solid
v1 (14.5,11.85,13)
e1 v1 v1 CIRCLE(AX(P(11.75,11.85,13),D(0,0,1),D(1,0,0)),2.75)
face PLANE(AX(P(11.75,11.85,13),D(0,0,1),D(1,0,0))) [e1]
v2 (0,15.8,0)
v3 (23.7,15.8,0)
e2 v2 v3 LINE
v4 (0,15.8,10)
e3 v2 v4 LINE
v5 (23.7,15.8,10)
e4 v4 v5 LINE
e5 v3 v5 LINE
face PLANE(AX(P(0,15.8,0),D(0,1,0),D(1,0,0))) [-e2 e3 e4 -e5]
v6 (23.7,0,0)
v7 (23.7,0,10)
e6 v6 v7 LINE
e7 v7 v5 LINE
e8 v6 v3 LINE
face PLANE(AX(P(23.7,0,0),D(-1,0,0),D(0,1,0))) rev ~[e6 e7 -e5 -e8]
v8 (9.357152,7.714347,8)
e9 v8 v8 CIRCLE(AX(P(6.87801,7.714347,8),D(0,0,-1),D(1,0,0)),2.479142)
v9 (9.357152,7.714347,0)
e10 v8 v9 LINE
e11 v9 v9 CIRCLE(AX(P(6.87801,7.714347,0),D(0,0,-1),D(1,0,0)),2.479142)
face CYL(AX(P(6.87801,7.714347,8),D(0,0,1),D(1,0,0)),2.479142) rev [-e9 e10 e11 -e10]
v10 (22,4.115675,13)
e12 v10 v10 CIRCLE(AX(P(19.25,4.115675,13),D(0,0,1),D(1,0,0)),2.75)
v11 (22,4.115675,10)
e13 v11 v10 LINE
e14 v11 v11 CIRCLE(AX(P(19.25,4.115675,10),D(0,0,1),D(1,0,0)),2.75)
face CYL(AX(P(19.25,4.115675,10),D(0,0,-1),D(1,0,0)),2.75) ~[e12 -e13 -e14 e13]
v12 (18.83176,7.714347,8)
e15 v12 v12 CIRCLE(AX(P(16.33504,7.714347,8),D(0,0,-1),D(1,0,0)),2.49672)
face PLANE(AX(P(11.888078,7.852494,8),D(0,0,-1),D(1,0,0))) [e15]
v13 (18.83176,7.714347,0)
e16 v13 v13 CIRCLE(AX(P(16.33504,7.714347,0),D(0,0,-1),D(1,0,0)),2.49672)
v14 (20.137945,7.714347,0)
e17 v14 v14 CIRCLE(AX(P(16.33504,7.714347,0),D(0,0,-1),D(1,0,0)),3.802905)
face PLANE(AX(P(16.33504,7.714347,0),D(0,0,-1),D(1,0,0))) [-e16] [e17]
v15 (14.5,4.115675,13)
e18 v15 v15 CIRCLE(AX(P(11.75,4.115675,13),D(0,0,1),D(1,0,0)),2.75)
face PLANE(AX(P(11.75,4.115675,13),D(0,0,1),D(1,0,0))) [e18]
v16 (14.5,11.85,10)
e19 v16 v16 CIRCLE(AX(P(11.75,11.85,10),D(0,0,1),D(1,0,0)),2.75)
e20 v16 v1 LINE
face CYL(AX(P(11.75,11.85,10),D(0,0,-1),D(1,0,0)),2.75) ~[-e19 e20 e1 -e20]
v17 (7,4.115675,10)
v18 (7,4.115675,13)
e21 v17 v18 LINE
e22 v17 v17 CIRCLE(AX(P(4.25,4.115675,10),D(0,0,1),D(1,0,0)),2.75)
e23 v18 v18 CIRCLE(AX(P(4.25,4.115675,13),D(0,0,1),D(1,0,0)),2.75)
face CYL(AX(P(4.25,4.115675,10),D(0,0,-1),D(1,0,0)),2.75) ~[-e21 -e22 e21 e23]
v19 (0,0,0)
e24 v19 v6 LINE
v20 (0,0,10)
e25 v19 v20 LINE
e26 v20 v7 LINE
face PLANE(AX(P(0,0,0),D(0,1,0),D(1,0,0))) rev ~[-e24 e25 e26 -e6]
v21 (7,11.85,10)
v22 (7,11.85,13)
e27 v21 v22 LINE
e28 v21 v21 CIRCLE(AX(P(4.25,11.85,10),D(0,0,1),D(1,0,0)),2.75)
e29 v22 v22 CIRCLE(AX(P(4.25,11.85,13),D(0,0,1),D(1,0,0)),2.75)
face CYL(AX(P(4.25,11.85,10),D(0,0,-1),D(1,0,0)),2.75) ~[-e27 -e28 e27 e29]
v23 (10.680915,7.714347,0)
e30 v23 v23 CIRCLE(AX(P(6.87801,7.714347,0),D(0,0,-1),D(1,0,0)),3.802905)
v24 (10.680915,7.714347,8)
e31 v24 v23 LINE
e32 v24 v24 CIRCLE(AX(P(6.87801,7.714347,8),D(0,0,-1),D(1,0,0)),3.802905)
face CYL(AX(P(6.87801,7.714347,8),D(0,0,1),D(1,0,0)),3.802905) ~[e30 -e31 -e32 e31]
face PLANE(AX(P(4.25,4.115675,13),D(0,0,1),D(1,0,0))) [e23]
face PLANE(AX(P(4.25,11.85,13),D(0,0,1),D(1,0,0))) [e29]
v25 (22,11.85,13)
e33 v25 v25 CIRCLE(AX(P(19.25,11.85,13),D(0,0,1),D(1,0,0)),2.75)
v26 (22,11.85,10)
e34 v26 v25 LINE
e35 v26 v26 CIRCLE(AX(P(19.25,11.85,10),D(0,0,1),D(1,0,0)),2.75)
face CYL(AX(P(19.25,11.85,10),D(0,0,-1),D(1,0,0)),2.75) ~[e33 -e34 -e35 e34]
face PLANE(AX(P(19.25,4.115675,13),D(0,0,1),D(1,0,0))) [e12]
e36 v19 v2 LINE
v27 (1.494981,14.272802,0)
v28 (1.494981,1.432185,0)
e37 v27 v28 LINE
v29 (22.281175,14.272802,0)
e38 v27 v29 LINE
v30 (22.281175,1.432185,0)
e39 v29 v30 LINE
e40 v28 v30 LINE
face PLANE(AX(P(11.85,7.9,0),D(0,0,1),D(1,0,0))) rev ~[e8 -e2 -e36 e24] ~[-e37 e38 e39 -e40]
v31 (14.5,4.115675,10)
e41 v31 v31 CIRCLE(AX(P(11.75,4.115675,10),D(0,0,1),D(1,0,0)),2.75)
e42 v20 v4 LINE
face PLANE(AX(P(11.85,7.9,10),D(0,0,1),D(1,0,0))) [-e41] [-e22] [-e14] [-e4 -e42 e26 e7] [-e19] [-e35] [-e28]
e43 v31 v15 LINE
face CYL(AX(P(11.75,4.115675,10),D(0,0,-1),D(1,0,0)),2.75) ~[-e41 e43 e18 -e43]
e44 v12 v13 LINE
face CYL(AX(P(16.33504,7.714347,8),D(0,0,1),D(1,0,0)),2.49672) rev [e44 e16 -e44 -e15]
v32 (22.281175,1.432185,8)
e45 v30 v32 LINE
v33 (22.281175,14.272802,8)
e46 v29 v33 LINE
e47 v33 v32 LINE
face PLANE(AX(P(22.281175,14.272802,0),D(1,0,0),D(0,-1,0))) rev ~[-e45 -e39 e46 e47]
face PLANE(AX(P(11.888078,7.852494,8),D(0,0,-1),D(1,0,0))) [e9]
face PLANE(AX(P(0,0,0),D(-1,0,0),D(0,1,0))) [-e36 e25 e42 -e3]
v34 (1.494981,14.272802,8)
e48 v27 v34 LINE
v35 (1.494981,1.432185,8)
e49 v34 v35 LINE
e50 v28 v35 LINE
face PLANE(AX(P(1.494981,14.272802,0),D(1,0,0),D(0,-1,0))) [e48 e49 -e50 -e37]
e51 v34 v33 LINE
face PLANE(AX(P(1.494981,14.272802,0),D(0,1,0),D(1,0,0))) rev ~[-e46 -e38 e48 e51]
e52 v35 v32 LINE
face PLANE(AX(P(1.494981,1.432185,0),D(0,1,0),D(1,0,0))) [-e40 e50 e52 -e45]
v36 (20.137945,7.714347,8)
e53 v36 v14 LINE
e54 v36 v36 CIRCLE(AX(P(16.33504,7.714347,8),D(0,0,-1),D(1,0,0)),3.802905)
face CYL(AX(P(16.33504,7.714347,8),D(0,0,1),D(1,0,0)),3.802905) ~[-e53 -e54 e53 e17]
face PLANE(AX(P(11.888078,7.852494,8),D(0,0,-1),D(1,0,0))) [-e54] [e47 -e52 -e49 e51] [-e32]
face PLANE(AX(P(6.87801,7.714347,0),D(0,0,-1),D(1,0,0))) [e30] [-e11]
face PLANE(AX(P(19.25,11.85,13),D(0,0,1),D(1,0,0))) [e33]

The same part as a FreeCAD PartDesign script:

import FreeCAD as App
import Part
import Sketcher

doc = App.newDocument("Part")
params = doc.addObject("Spreadsheet::Sheet", "Params")
for row, (alias, value) in enumerate([
    ("sketch1_width", "23.7 mm"),
    ("sketch1_height", "15.8 mm"),
    ("pad1_length", "10 mm"),
    ("sketch2_diameter", "5.5 mm"),
    ("pad2_length", "3 mm"),
    ("pocket1_length", "8 mm"),
    ("pad3_length", "8 mm"),
], start=1):
    params.set(f"A{row}", alias)
    params.set(f"B{row}", "=" + value)
    params.setAlias(f"B{row}", alias)

body = doc.addObject("PartDesign::Body", "Body")

sketch1 = doc.addObject("Sketcher::SketchObject", "Sketch")
body.addObject(sketch1)
sketch1.AttachmentSupport = (doc.XY_Plane, [""])
sketch1.MapMode = "FlatFace"
sketch1.addGeometry([
    Part.LineSegment(App.Vector(0, 16, 0), App.Vector(0, 0, 0)),
    Part.LineSegment(App.Vector(0, 0, 0), App.Vector(24, 0, 0)),
    Part.LineSegment(App.Vector(24, 0, 0), App.Vector(24, 16, 0)),
    Part.LineSegment(App.Vector(24, 16, 0), App.Vector(0, 16, 0)),
], False)
sketch1.addConstraint([
    Sketcher.Constraint("Coincident", 0, 2, 1, 1),
    Sketcher.Constraint("Coincident", 1, 2, 2, 1),
    Sketcher.Constraint("Coincident", 2, 2, 3, 1),
    Sketcher.Constraint("Coincident", 3, 2, 0, 1),
    Sketcher.Constraint("Vertical", 0),
    Sketcher.Constraint("Horizontal", 1),
    Sketcher.Constraint("Vertical", 2),
    Sketcher.Constraint("Horizontal", 3),
    Sketcher.Constraint("Coincident", 0, 2, -1, 1),
    Sketcher.Constraint("DistanceX", 1, 1, 1, 2, 23.7),
    Sketcher.Constraint("DistanceY", 0, 2, 0, 1, 15.8),
])
sketch1.setExpression("Constraints[9]", "Params.sketch1_width")
sketch1.setExpression("Constraints[10]", "Params.sketch1_height")
pad1 = doc.addObject("PartDesign::Pad", "Pad")
body.addObject(pad1)
pad1.Profile = sketch1
pad1.setExpression("Length", "Params.pad1_length")

sketch2 = doc.addObject("Sketcher::SketchObject", "Sketch001")
body.addObject(sketch2)
sketch2.AttachmentSupport = (doc.XY_Plane, [""])
sketch2.MapMode = "FlatFace"
sketch2.AttachmentOffset = App.Placement(App.Vector(0, 0, 10), App.Rotation())
sketch2.addGeometry([
    Part.Circle(App.Vector(4.2, 11.8, 0), App.Vector(0, 0, 1), 2.8),
    Part.Circle(App.Vector(11.8, 11.8, 0), App.Vector(0, 0, 1), 2.8),
    Part.Circle(App.Vector(19.2, 11.8, 0), App.Vector(0, 0, 1), 2.8),
    Part.Circle(App.Vector(4.2, 4.1, 0), App.Vector(0, 0, 1), 2.8),
    Part.Circle(App.Vector(11.8, 4.1, 0), App.Vector(0, 0, 1), 2.8),
    Part.Circle(App.Vector(19.2, 4.1, 0), App.Vector(0, 0, 1), 2.8),
], False)
sketch2.addConstraint([
    Sketcher.Constraint("Equal", 0, 1),
    Sketcher.Constraint("Equal", 1, 2),
    Sketcher.Constraint("Equal", 2, 3),
    Sketcher.Constraint("Equal", 3, 4),
    Sketcher.Constraint("Equal", 4, 5),
    Sketcher.Constraint("Horizontal", 0, 3, 1, 3),
    Sketcher.Constraint("Horizontal", 1, 3, 2, 3),
    Sketcher.Constraint("Horizontal", 3, 3, 4, 3),
    Sketcher.Constraint("Horizontal", 4, 3, 5, 3),
    Sketcher.Constraint("Vertical", 0, 3, 3, 3),
    Sketcher.Constraint("Vertical", 1, 3, 4, 3),
    Sketcher.Constraint("Vertical", 2, 3, 5, 3),
    Sketcher.Constraint("Diameter", 0, 5.5),
    Sketcher.Constraint("DistanceX", 0, 3, 2, 3, 15.0),
    Sketcher.Constraint("DistanceX", 0, 3, 1, 3, 7.5),
    Sketcher.Constraint("DistanceX", -1, 1, 0, 3, 4.25),
    Sketcher.Constraint("DistanceY", -1, 1, 0, 3, 11.85),
    Sketcher.Constraint("DistanceY", -1, 1, 3, 3, 4.115675),
])
sketch2.setExpression("Constraints[12]", "Params.sketch2_diameter")
pad2 = doc.addObject("PartDesign::Pad", "Pad001")
body.addObject(pad2)
pad2.Profile = sketch2
pad2.setExpression("Length", "Params.pad2_length")

sketch3 = doc.addObject("Sketcher::SketchObject", "Sketch002")
body.addObject(sketch3)
sketch3.AttachmentSupport = (doc.XY_Plane, [""])
sketch3.MapMode = "FlatFace"
sketch3.addGeometry([
    Part.LineSegment(App.Vector(1, 1, 0), App.Vector(1, 14, 0)),
    Part.LineSegment(App.Vector(1, 14, 0), App.Vector(22, 14, 0)),
    Part.LineSegment(App.Vector(22, 14, 0), App.Vector(22, 1, 0)),
    Part.LineSegment(App.Vector(22, 1, 0), App.Vector(1, 1, 0)),
], False)
sketch3.addConstraint([
    Sketcher.Constraint("Coincident", 0, 2, 1, 1),
    Sketcher.Constraint("Coincident", 1, 2, 2, 1),
    Sketcher.Constraint("Coincident", 2, 2, 3, 1),
    Sketcher.Constraint("Coincident", 3, 2, 0, 1),
    Sketcher.Constraint("Vertical", 0),
    Sketcher.Constraint("Horizontal", 1),
    Sketcher.Constraint("Vertical", 2),
    Sketcher.Constraint("Horizontal", 3),
    Sketcher.Constraint("DistanceX", 1, 1, 1, 2, 20.786194),
    Sketcher.Constraint("DistanceY", 0, 1, 0, 2, 12.840617),
    Sketcher.Constraint("DistanceX", -1, 1, 0, 2, 1.494981),
    Sketcher.Constraint("DistanceY", -1, 1, 0, 2, 14.272802),
])
pocket1 = doc.addObject("PartDesign::Pocket", "Pocket")
body.addObject(pocket1)
pocket1.Profile = sketch3
pocket1.setExpression("Length", "Params.pocket1_length")
pocket1.Reversed = True

sketch4 = doc.addObject("Sketcher::SketchObject", "Sketch003")
body.addObject(sketch4)
sketch4.AttachmentSupport = (doc.XY_Plane, [""])
sketch4.MapMode = "FlatFace"
sketch4.AttachmentOffset = App.Placement(App.Vector(0, 0, 8), App.Rotation())
sketch4.addGeometry([
    Part.Circle(App.Vector(16.3, 7.7, 0), App.Vector(0, 0, 1), 3.8),
    Part.Circle(App.Vector(16.3, 7.7, 0), App.Vector(0, 0, 1), 2.5),
    Part.Circle(App.Vector(6.9, 7.7, 0), App.Vector(0, 0, 1), 3.8),
    Part.Circle(App.Vector(6.9, 7.7, 0), App.Vector(0, 0, 1), 2.5),
], False)
sketch4.addConstraint([
    Sketcher.Constraint("Coincident", 1, 3, 0, 3),
    Sketcher.Constraint("Coincident", 3, 3, 2, 3),
    Sketcher.Constraint("Equal", 0, 2),
    Sketcher.Constraint("Horizontal", 1, 3, 2, 3),
    Sketcher.Constraint("Diameter", 0, 7.60581),
    Sketcher.Constraint("Diameter", 1, 4.99344),
    Sketcher.Constraint("Diameter", 3, 4.958284),
    Sketcher.Constraint("DistanceX", -1, 1, 0, 3, 16.33504),
    Sketcher.Constraint("DistanceX", -1, 1, 2, 3, 6.87801),
    Sketcher.Constraint("DistanceY", -1, 1, 0, 3, 7.714347),
])
pad3 = doc.addObject("PartDesign::Pad", "Pad002")
body.addObject(pad3)
pad3.Profile = sketch4
pad3.setExpression("Length", "Params.pad3_length")
pad3.Reversed = True

doc.recompute()
